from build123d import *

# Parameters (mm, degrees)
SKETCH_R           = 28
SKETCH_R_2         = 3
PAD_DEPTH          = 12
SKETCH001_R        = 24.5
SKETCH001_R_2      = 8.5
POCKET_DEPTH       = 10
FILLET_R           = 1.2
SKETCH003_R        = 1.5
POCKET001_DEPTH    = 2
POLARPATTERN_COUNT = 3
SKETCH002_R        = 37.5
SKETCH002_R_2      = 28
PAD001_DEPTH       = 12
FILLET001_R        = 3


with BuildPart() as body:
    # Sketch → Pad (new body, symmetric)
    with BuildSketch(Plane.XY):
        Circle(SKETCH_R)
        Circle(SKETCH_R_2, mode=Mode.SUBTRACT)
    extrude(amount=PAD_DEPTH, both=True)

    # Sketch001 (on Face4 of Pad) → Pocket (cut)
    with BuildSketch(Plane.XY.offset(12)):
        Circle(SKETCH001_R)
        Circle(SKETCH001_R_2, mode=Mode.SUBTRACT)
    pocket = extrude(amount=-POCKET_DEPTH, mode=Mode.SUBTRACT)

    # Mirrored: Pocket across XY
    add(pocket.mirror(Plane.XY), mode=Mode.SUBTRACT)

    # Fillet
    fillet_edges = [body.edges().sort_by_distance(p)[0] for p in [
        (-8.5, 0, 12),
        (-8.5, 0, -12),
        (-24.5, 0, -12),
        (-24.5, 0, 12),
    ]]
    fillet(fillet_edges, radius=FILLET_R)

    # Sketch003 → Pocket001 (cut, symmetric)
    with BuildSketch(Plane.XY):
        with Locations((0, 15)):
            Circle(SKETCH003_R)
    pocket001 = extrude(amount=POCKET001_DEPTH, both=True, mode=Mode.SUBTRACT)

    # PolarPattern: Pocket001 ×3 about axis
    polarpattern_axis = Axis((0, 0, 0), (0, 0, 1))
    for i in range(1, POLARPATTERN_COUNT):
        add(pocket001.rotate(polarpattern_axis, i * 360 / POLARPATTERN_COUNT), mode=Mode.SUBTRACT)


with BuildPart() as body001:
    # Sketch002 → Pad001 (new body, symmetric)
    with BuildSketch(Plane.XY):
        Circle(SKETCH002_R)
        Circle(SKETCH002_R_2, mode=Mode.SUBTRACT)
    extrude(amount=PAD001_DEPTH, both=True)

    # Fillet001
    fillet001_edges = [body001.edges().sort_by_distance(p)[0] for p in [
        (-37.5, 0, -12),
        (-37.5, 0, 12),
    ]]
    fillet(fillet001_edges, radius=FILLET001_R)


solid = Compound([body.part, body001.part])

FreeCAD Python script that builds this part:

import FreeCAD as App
import Part
import Sketcher
Q = App.Units.Quantity


def edges_at(feature, points):
    """Names of the edges that pass closest to the given points."""
    edges = feature.Shape.Edges
    near = lambda p: min(range(len(edges)), key=lambda i: edges[i].distToShape(Part.Vertex(*p))[0])
    return sorted({f"Edge{near(p) + 1}" for p in points})

doc = App.newDocument("Part")
params = doc.addObject("Spreadsheet::Sheet", "Params")
for row, (alias, value) in enumerate([
    ("sketch1_diameter", "56 mm"),
    ("sketch1_diameter2", "6 mm"),
    ("pad1_length", "24 mm"),
    ("sketch2_diameter", "49 mm"),
    ("sketch2_diameter2", "17 mm"),
    ("pocket1_length", "10 mm"),
    ("fillet_radius", "1.2 mm"),
    ("sketch3_diameter", "3 mm"),
    ("pocket2_length", "4 mm"),
    ("sketch4_diameter", "75 mm"),
    ("sketch4_diameter2", "56 mm"),
    ("pad2_length", "24 mm"),
    ("fillet2_radius", "3 mm"),
], start=1):
    params.set(f"A{row}", alias)
    params.set(f"B{row}", "=" + value)
    params.setAlias(f"B{row}", alias)

body = doc.addObject("PartDesign::Body", "Body")

sketch1 = body.newObject("Sketcher::SketchObject", "Sketch")
sketch1.AttachmentSupport = (doc.getObject("XY_Plane"), [""])
sketch1.MapMode = "FlatFace"
sketch1.addGeometry(Part.Circle(App.Vector(0, 0, 0), App.Vector(0, 0, 1), 28), False)
sketch1.addGeometry(Part.Circle(App.Vector(0, 0, 0), App.Vector(0, 0, 1), 3), False)
sketch1.addConstraint(Sketcher.Constraint("Coincident", 0, 3, -1, 1))
sketch1.addConstraint(Sketcher.Constraint("Coincident", 1, 3, -1, 1))
sketch1.addConstraint(Sketcher.Constraint("Diameter", 0, Q("56 mm")))
sketch1.addConstraint(Sketcher.Constraint("Diameter", 1, Q("6 mm")))
sketch1.setExpression("Constraints[2]", "Params.sketch1_diameter")
sketch1.setExpression("Constraints[3]", "Params.sketch1_diameter2")
pad1 = body.newObject("PartDesign::Pad", "Pad")
pad1.Profile = sketch1
pad1.setExpression("Length", "Params.pad1_length")
pad1.Midplane = True

sketch2 = body.newObject("Sketcher::SketchObject", "Sketch001")
sketch2.AttachmentSupport = (doc.getObject("XY_Plane"), [""])
sketch2.MapMode = "FlatFace"
sketch2.AttachmentOffset = App.Placement(App.Vector(0, 0, 12), App.Rotation())
sketch2.addGeometry(Part.Circle(App.Vector(0, 0, 0), App.Vector(0, 0, 1), 24), False)
sketch2.addGeometry(Part.Circle(App.Vector(0, 0, 0), App.Vector(0, 0, 1), 8), False)
sketch2.addConstraint(Sketcher.Constraint("Coincident", 0, 3, -1, 1))
sketch2.addConstraint(Sketcher.Constraint("Coincident", 1, 3, -1, 1))
sketch2.addConstraint(Sketcher.Constraint("Diameter", 0, Q("49 mm")))
sketch2.addConstraint(Sketcher.Constraint("Diameter", 1, Q("17 mm")))
sketch2.setExpression("Constraints[2]", "Params.sketch2_diameter")
sketch2.setExpression("Constraints[3]", "Params.sketch2_diameter2")
pocket1 = body.newObject("PartDesign::Pocket", "Pocket")
pocket1.Profile = sketch2
pocket1.setExpression("Length", "Params.pocket1_length")
doc.recompute()

mirrored = body.newObject("PartDesign::Mirrored", "Mirrored")
mirrored.Originals = [pocket1]
mirrored.MirrorPlane = (doc.getObject("XY_Plane"), [""])
body.Tip = mirrored
doc.recompute()

fillet = body.newObject("PartDesign::Fillet", "Fillet")
fillet.Base = (mirrored, edges_at(mirrored, [
    (-8.5, 0, 12),
    (-8.5, 0, -12),
    (-24.5, 0, -12),
    (-24.5, 0, 12),
]))
fillet.setExpression("Radius", "Params.fillet_radius")

sketch3 = body.newObject("Sketcher::SketchObject", "Sketch002")
sketch3.AttachmentSupport = (doc.getObject("XY_Plane"), [""])
sketch3.MapMode = "FlatFace"
sketch3.addGeometry(Part.Circle(App.Vector(0, 15, 0), App.Vector(0, 0, 1), 1.5), False)
sketch3.addConstraint(Sketcher.Constraint("PointOnObject", 0, 3, -2))
sketch3.addConstraint(Sketcher.Constraint("Diameter", 0, Q("3 mm")))
sketch3.addConstraint(Sketcher.Constraint("DistanceY", -1, 1, 0, 3, Q("15 mm")))
sketch3.setExpression("Constraints[1]", "Params.sketch3_diameter")
pocket2 = body.newObject("PartDesign::Pocket", "Pocket001")
pocket2.Profile = sketch3
pocket2.setExpression("Length", "Params.pocket2_length")
pocket2.Midplane = True
doc.recompute()

polarpattern = body.newObject("PartDesign::PolarPattern", "PolarPattern")
polarpattern.Originals = [pocket2]
polarpattern.Axis = (doc.getObject("Z_Axis"), [""])
polarpattern.Angle = 360
polarpattern.Occurrences = 3
body.Tip = polarpattern
body2 = doc.addObject("PartDesign::Body", "Body001")

sketch4 = body2.newObject("Sketcher::SketchObject", "Sketch003")
sketch4.AttachmentSupport = (doc.getObject("XY_Plane001"), [""])
sketch4.MapMode = "FlatFace"
sketch4.addGeometry(Part.Circle(App.Vector(0, 0, 0), App.Vector(0, 0, 1), 38), False)
sketch4.addGeometry(Part.Circle(App.Vector(0, 0, 0), App.Vector(0, 0, 1), 28), False)
sketch4.addConstraint(Sketcher.Constraint("Coincident", 0, 3, -1, 1))
sketch4.addConstraint(Sketcher.Constraint("Coincident", 1, 3, -1, 1))
sketch4.addConstraint(Sketcher.Constraint("Diameter", 0, Q("75 mm")))
sketch4.addConstraint(Sketcher.Constraint("Diameter", 1, Q("56 mm")))
sketch4.setExpression("Constraints[2]", "Params.sketch4_diameter")
sketch4.setExpression("Constraints[3]", "Params.sketch4_diameter2")
pad2 = body2.newObject("PartDesign::Pad", "Pad001")
pad2.Profile = sketch4
pad2.setExpression("Length", "Params.pad2_length")
pad2.Midplane = True
doc.recompute()

fillet2 = body2.newObject("PartDesign::Fillet", "Fillet001")
fillet2.Base = (pad2, edges_at(pad2, [(-37.5, 0, -12), (-37.5, 0, 12)]))
fillet2.setExpression("Radius", "Params.fillet2_radius")

doc.recompute()
